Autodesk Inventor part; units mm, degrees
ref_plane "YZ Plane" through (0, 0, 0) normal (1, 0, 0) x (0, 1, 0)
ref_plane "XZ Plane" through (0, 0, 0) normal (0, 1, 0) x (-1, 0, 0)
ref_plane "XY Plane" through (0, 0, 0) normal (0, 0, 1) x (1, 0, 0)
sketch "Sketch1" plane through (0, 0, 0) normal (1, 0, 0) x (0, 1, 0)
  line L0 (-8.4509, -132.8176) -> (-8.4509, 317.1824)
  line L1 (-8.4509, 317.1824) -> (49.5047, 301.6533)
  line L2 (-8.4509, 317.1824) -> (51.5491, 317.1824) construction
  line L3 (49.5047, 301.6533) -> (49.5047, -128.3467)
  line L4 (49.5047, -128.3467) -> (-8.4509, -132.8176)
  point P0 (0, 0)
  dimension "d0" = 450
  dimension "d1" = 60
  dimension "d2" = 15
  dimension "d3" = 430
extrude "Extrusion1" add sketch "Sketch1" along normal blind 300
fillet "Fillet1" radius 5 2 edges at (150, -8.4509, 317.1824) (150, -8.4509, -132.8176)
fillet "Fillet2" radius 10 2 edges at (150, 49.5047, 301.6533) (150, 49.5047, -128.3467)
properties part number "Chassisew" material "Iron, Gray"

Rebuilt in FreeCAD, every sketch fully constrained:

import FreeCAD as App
import Part
import Sketcher
Q = App.Units.Quantity


def edges_at(feature, points):
    """Names of the edges that pass closest to the given points."""
    edges = feature.Shape.Edges
    near = lambda p: min(range(len(edges)), key=lambda i: edges[i].distToShape(Part.Vertex(*p))[0])
    return sorted({f"Edge{near(p) + 1}" for p in points})

doc = App.newDocument("Part")
body = doc.addObject("PartDesign::Body", "Body")

# Sketch on YZ plane
sketch1 = body.newObject("Sketcher::SketchObject", "Sketch")
sketch1.AttachmentSupport = (doc.getObject("YZ_Plane"), [""])
sketch1.MapMode = "FlatFace"
sketch1.addGeometry(Part.LineSegment(App.Vector(-8, 317, 0), App.Vector(-8, -133, 0)), False)
sketch1.addGeometry(Part.LineSegment(App.Vector(-8, -133, 0), App.Vector(50, -128, 0)), False)
sketch1.addGeometry(Part.LineSegment(App.Vector(50, -128, 0), App.Vector(50, 302, 0)), False)
sketch1.addGeometry(Part.LineSegment(App.Vector(50, 302, 0), App.Vector(-8, 317, 0)), False)
sketch1.addConstraint(Sketcher.Constraint("Coincident", 0, 2, 1, 1))
sketch1.addConstraint(Sketcher.Constraint("Coincident", 1, 2, 2, 1))
sketch1.addConstraint(Sketcher.Constraint("Coincident", 2, 2, 3, 1))
sketch1.addConstraint(Sketcher.Constraint("Coincident", 3, 2, 0, 1))
sketch1.addConstraint(Sketcher.Constraint("Vertical", 0))
sketch1.addConstraint(Sketcher.Constraint("Vertical", 2))
sketch1.addConstraint(Sketcher.Constraint("DistanceY", 0, 2, 0, 1, 450.0))
sketch1.addConstraint(Sketcher.Constraint("DistanceY", 2, 1, 2, 2, 430.0))
sketch1.addConstraint(Sketcher.Constraint("Distance", 3, 60.0))
sketch1.addConstraint(Sketcher.Constraint("Angle", 3, Q("165 deg")))
sketch1.addConstraint(Sketcher.Constraint("DistanceX", 0, 2, -1, 1, 8.451))
sketch1.addConstraint(Sketcher.Constraint("DistanceY", 0, 2, -1, 1, 132.8176))
pad1 = body.newObject("PartDesign::Pad", "Pad")
pad1.Profile = sketch1
pad1.Length = 300
doc.recompute()

fillet = body.newObject("PartDesign::Fillet", "Fillet")
fillet.Base = (pad1, edges_at(pad1, [(150, -8.451, 317.182), (150, -8.451, -132.818)]))
fillet.Radius = 5
doc.recompute()

fillet2 = body.newObject("PartDesign::Fillet", "Fillet001")
fillet2.Base = (fillet, edges_at(fillet, [(150, 49.505, 301.653), (150, 49.505, -128.347)]))
fillet2.Radius = 10

doc.recompute()
